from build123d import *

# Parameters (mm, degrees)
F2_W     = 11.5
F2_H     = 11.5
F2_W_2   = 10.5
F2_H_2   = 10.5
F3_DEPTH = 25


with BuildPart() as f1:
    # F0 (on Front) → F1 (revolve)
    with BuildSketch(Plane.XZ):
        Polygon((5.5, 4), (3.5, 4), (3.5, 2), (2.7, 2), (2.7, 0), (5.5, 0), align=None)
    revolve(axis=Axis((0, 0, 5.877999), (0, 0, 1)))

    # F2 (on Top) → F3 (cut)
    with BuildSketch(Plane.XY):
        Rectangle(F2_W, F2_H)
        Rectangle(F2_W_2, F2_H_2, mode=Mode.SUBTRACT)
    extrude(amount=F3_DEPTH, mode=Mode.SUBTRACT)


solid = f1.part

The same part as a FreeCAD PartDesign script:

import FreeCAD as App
import Part
import Sketcher
Q = App.Units.Quantity

doc = App.newDocument("Part")
body = doc.addObject("PartDesign::Body", "Body")

sketch1 = body.newObject("Sketcher::SketchObject", "Sketch")
sketch1.AttachmentSupport = (doc.getObject("XZ_Plane"), [""])
sketch1.MapMode = "FlatFace"
sketch1.addGeometry([
    Part.LineSegment(App.Vector(5.5, 4, 0), App.Vector(3.5, 4, 0)),
    Part.LineSegment(App.Vector(3.5, 4, 0), App.Vector(3.5, 2, 0)),
    Part.LineSegment(App.Vector(3.5, 2, 0), App.Vector(2.7, 2, 0)),
    Part.LineSegment(App.Vector(2.7, 2, 0), App.Vector(2.7, 0, 0)),
    Part.LineSegment(App.Vector(2.7, 0, 0), App.Vector(5.5, 0, 0)),
    Part.LineSegment(App.Vector(5.5, 0, 0), App.Vector(5.5, 4, 0)),
], False)
sketch1.addConstraint([
    Sketcher.Constraint("Coincident", 0, 2, 1, 1),
    Sketcher.Constraint("Coincident", 1, 2, 2, 1),
    Sketcher.Constraint("Coincident", 2, 2, 3, 1),
    Sketcher.Constraint("Coincident", 3, 2, 4, 1),
    Sketcher.Constraint("Coincident", 4, 2, 5, 1),
    Sketcher.Constraint("Coincident", 5, 2, 0, 1),
    Sketcher.Constraint("Horizontal", 0),
    Sketcher.Constraint("Vertical", 1),
    Sketcher.Constraint("Horizontal", 2),
    Sketcher.Constraint("Vertical", 3),
    Sketcher.Constraint("Horizontal", 4),
    Sketcher.Constraint("Vertical", 5),
    Sketcher.Constraint("PointOnObject", 3, 2, -1),
    Sketcher.Constraint("Equal", 0, 1),
    Sketcher.Constraint("Equal", 1, 3),
    Sketcher.Constraint("DistanceX", 0, 2, 0, 1, Q("2 mm")),
    Sketcher.Constraint("DistanceX", 2, 2, 2, 1, Q("0.8 mm")),
    Sketcher.Constraint("DistanceX", -1, 1, 0, 2, Q("3.5 mm")),
])
revolution = body.newObject("PartDesign::Revolution", "Revolution")
revolution.Profile = sketch1
revolution.ReferenceAxis = (sketch1, ["V_Axis"])
revolution.Angle = 360

sketch2 = body.newObject("Sketcher::SketchObject", "Sketch001")
sketch2.AttachmentSupport = (doc.getObject("XY_Plane"), [""])
sketch2.MapMode = "FlatFace"
sketch2.addGeometry([
    Part.LineSegment(App.Vector(-6, 6, 0), App.Vector(-6, -6, 0)),
    Part.LineSegment(App.Vector(-6, -6, 0), App.Vector(6, -6, 0)),
    Part.LineSegment(App.Vector(6, -6, 0), App.Vector(6, 6, 0)),
    Part.LineSegment(App.Vector(6, 6, 0), App.Vector(-6, 6, 0)),
    Part.LineSegment(App.Vector(5, -5, 0), App.Vector(-5, -5, 0)),
    Part.LineSegment(App.Vector(-5, -5, 0), App.Vector(-5, 5, 0)),
    Part.LineSegment(App.Vector(-5, 5, 0), App.Vector(5, 5, 0)),
    Part.LineSegment(App.Vector(5, 5, 0), App.Vector(5, -5, 0)),
], False)
sketch2.addConstraint([
    Sketcher.Constraint("Coincident", 0, 2, 1, 1),
    Sketcher.Constraint("Coincident", 1, 2, 2, 1),
    Sketcher.Constraint("Coincident", 2, 2, 3, 1),
    Sketcher.Constraint("Coincident", 3, 2, 0, 1),
    Sketcher.Constraint("Coincident", 4, 2, 5, 1),
    Sketcher.Constraint("Coincident", 5, 2, 6, 1),
    Sketcher.Constraint("Coincident", 6, 2, 7, 1),
    Sketcher.Constraint("Coincident", 7, 2, 4, 1),
    Sketcher.Constraint("Vertical", 0),
    Sketcher.Constraint("Horizontal", 1),
    Sketcher.Constraint("Vertical", 2),
    Sketcher.Constraint("Horizontal", 3),
    Sketcher.Constraint("Horizontal", 4),
    Sketcher.Constraint("Vertical", 5),
    Sketcher.Constraint("Horizontal", 6),
    Sketcher.Constraint("Vertical", 7),
    Sketcher.Constraint("Symmetric", 0, 2, 2, 2, -1, 1),
    Sketcher.Constraint("Symmetric", 4, 2, 6, 2, -1, 1),
    Sketcher.Constraint("Equal", 3, 0),
    Sketcher.Constraint("Equal", 6, 5),
    Sketcher.Constraint("DistanceX", 1, 1, 1, 2, Q("11.5 mm")),
    Sketcher.Constraint("DistanceX", 4, 2, 4, 1, Q("10.5 mm")),
])
pocket1 = body.newObject("PartDesign::Pocket", "Pocket")
pocket1.Profile = sketch2
pocket1.Length = 25
pocket1.Reversed = True

doc.recompute()
